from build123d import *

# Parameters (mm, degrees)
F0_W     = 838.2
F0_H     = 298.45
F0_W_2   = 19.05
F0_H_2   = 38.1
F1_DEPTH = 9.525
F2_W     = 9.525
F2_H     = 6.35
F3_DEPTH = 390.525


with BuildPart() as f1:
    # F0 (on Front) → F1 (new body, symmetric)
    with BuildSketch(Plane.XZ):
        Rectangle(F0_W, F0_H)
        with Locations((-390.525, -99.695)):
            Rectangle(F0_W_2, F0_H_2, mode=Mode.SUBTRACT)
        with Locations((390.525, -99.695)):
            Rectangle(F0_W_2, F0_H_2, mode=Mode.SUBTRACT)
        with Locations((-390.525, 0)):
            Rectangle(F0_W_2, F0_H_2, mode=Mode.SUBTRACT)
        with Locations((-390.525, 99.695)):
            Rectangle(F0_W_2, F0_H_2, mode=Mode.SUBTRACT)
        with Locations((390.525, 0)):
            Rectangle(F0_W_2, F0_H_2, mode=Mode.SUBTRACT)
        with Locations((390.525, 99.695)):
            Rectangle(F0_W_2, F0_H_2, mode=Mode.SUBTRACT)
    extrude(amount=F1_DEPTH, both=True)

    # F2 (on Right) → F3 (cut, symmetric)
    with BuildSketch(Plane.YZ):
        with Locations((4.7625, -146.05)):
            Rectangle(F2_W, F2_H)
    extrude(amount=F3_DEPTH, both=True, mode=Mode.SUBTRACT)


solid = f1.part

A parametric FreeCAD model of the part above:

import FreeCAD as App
import Part
import Sketcher
Q = App.Units.Quantity

doc = App.newDocument("Part")
params = doc.addObject("Spreadsheet::Sheet", "Params")
for row, (alias, value) in enumerate([
    ("sketch1_width", "33 in"),
    ("sketch1_height", "1.5 in"),
    ("sketch1_width2", "0.75 in"),
    ("sketch1_height2", "11.75 in"),
    ("pad1_length", "0.75 in"),
    ("sketch2_height", "0.25 in"),
    ("sketch2_width", "0.375 in"),
    ("pocket1_length", "30.75 in"),
], start=1):
    params.set(f"A{row}", alias)
    params.set(f"B{row}", "=" + value)
    params.setAlias(f"B{row}", alias)

body = doc.addObject("PartDesign::Body", "Body")

sketch1 = doc.addObject("Sketcher::SketchObject", "Sketch")
body.addObject(sketch1)
sketch1.AttachmentSupport = (doc.XZ_Plane, [""])
sketch1.MapMode = "FlatFace"
sketch1.addGeometry([
    Part.LineSegment(App.Vector(-419, 149, 0), App.Vector(-419, -149, 0)),
    Part.LineSegment(App.Vector(-419, -149, 0), App.Vector(419, -149, 0)),
    Part.LineSegment(App.Vector(419, -149, 0), App.Vector(419, 149, 0)),
    Part.LineSegment(App.Vector(419, 149, 0), App.Vector(-419, 149, 0)),
    Part.LineSegment(App.Vector(-381, -119, 0), App.Vector(-400, -119, 0)),
    Part.LineSegment(App.Vector(-400, -119, 0), App.Vector(-400, -81, 0)),
    Part.LineSegment(App.Vector(-400, -81, 0), App.Vector(-381, -81, 0)),
    Part.LineSegment(App.Vector(-381, -81, 0), App.Vector(-381, -119, 0)),
    Part.LineSegment(App.Vector(400, -119, 0), App.Vector(381, -119, 0)),
    Part.LineSegment(App.Vector(381, -119, 0), App.Vector(381, -81, 0)),
    Part.LineSegment(App.Vector(381, -81, 0), App.Vector(400, -81, 0)),
    Part.LineSegment(App.Vector(400, -81, 0), App.Vector(400, -119, 0)),
    Part.LineSegment(App.Vector(-381, -19, 0), App.Vector(-400, -19, 0)),
    Part.LineSegment(App.Vector(-400, -19, 0), App.Vector(-400, 19, 0)),
    Part.LineSegment(App.Vector(-400, 19, 0), App.Vector(-381, 19, 0)),
    Part.LineSegment(App.Vector(-381, 19, 0), App.Vector(-381, -19, 0)),
    Part.LineSegment(App.Vector(-381, 81, 0), App.Vector(-400, 81, 0)),
    Part.LineSegment(App.Vector(-400, 81, 0), App.Vector(-400, 119, 0)),
    Part.LineSegment(App.Vector(-400, 119, 0), App.Vector(-381, 119, 0)),
    Part.LineSegment(App.Vector(-381, 119, 0), App.Vector(-381, 81, 0)),
    Part.LineSegment(App.Vector(400, -19, 0), App.Vector(381, -19, 0)),
    Part.LineSegment(App.Vector(381, -19, 0), App.Vector(381, 19, 0)),
    Part.LineSegment(App.Vector(381, 19, 0), App.Vector(400, 19, 0)),
    Part.LineSegment(App.Vector(400, 19, 0), App.Vector(400, -19, 0)),
    Part.LineSegment(App.Vector(400, 81, 0), App.Vector(381, 81, 0)),
    Part.LineSegment(App.Vector(381, 81, 0), App.Vector(381, 119, 0)),
    Part.LineSegment(App.Vector(381, 119, 0), App.Vector(400, 119, 0)),
    Part.LineSegment(App.Vector(400, 119, 0), App.Vector(400, 81, 0)),
], False)
sketch1.addConstraint([
    Sketcher.Constraint("Coincident", 0, 2, 1, 1),
    Sketcher.Constraint("Coincident", 1, 2, 2, 1),
    Sketcher.Constraint("Coincident", 2, 2, 3, 1),
    Sketcher.Constraint("Coincident", 3, 2, 0, 1),
    Sketcher.Constraint("Coincident", 4, 2, 5, 1),
    Sketcher.Constraint("Coincident", 5, 2, 6, 1),
    Sketcher.Constraint("Coincident", 6, 2, 7, 1),
    Sketcher.Constraint("Coincident", 7, 2, 4, 1),
    Sketcher.Constraint("Coincident", 8, 2, 9, 1),
    Sketcher.Constraint("Coincident", 9, 2, 10, 1),
    Sketcher.Constraint("Coincident", 10, 2, 11, 1),
    Sketcher.Constraint("Coincident", 11, 2, 8, 1),
    Sketcher.Constraint("Coincident", 12, 2, 13, 1),
    Sketcher.Constraint("Coincident", 13, 2, 14, 1),
    Sketcher.Constraint("Coincident", 14, 2, 15, 1),
    Sketcher.Constraint("Coincident", 15, 2, 12, 1),
    Sketcher.Constraint("Coincident", 16, 2, 17, 1),
    Sketcher.Constraint("Coincident", 17, 2, 18, 1),
    Sketcher.Constraint("Coincident", 18, 2, 19, 1),
    Sketcher.Constraint("Coincident", 19, 2, 16, 1),
    Sketcher.Constraint("Coincident", 20, 2, 21, 1),
    Sketcher.Constraint("Coincident", 21, 2, 22, 1),
    Sketcher.Constraint("Coincident", 22, 2, 23, 1),
    Sketcher.Constraint("Coincident", 23, 2, 20, 1),
    Sketcher.Constraint("Coincident", 24, 2, 25, 1),
    Sketcher.Constraint("Coincident", 25, 2, 26, 1),
    Sketcher.Constraint("Coincident", 26, 2, 27, 1),
    Sketcher.Constraint("Coincident", 27, 2, 24, 1),
    Sketcher.Constraint("Vertical", 0),
    Sketcher.Constraint("Horizontal", 1),
    Sketcher.Constraint("Vertical", 2),
    Sketcher.Constraint("Horizontal", 3),
    Sketcher.Constraint("Horizontal", 4),
    Sketcher.Constraint("Vertical", 5),
    Sketcher.Constraint("Horizontal", 6),
    Sketcher.Constraint("Vertical", 7),
    Sketcher.Constraint("Horizontal", 8),
    Sketcher.Constraint("Vertical", 9),
    Sketcher.Constraint("Horizontal", 10),
    Sketcher.Constraint("Vertical", 11),
    Sketcher.Constraint("Horizontal", 12),
    Sketcher.Constraint("Vertical", 13),
    Sketcher.Constraint("Horizontal", 14),
    Sketcher.Constraint("Vertical", 15),
    Sketcher.Constraint("Horizontal", 16),
    Sketcher.Constraint("Vertical", 17),
    Sketcher.Constraint("Horizontal", 18),
    Sketcher.Constraint("Vertical", 19),
    Sketcher.Constraint("Horizontal", 20),
    Sketcher.Constraint("Vertical", 21),
    Sketcher.Constraint("Horizontal", 22),
    Sketcher.Constraint("Vertical", 23),
    Sketcher.Constraint("Horizontal", 24),
    Sketcher.Constraint("Vertical", 25),
    Sketcher.Constraint("Horizontal", 26),
    Sketcher.Constraint("Vertical", 27),
    Sketcher.Constraint("Symmetric", 0, 2, 2, 2, -1, 1),
    Sketcher.Constraint("Symmetric", 10, 2, 16, 2, -1, 1),
    Sketcher.Constraint("Symmetric", 8, 2, 18, 2, -1, 1),
    Sketcher.Constraint("Symmetric", 14, 2, 20, 2, -1, 1),
    Sketcher.Constraint("Symmetric", 12, 2, 22, 2, -1, 1),
    Sketcher.Constraint("Symmetric", 6, 2, 24, 2, -1, 1),
    Sketcher.Constraint("Symmetric", 4, 2, 26, 2, -1, 1),
    Sketcher.Constraint("Symmetric", 7, 2, 8, 2, -2),
    Sketcher.Constraint("Symmetric", 5, 2, 10, 2, -2),
    Sketcher.Constraint("Horizontal", 15, 2, 20, 2),
    Sketcher.Constraint("Vertical", 5, 2, 12, 2),
    Sketcher.Constraint("Vertical", 7, 2, 14, 2),
    Sketcher.Constraint("Equal", 11, 13),
    Sketcher.Constraint("DistanceX", 1, 1, 1, 2, Q("33 in")),
    Sketcher.Constraint("DistanceY", 5, 1, 5, 2, Q("1.5 in")),
    Sketcher.Constraint("DistanceX", 6, 2, -1, 1, Q("15 in")),
    Sketcher.Constraint("DistanceX", 4, 2, 4, 1, Q("0.75 in")),
    Sketcher.Constraint("DistanceY", 0, 2, 0, 1, Q("11.75 in")),
    Sketcher.Constraint("DistanceY", 0, 2, 4, 2, Q("1.2 in")),
])
sketch1.setExpression("Constraints[69]", "Params.sketch1_width")
sketch1.setExpression("Constraints[70]", "Params.sketch1_height")
sketch1.setExpression("Constraints[72]", "Params.sketch1_width2")
sketch1.setExpression("Constraints[73]", "Params.sketch1_height2")
pad1 = doc.addObject("PartDesign::Pad", "Pad")
body.addObject(pad1)
pad1.Profile = sketch1
pad1.setExpression("Length", "Params.pad1_length")
pad1.Midplane = True

sketch2 = doc.addObject("Sketcher::SketchObject", "Sketch001")
body.addObject(sketch2)
sketch2.AttachmentSupport = (doc.YZ_Plane, [""])
sketch2.MapMode = "FlatFace"
sketch2.addGeometry([
    Part.LineSegment(App.Vector(0, -143, 0), App.Vector(0, -149, 0)),
    Part.LineSegment(App.Vector(0, -149, 0), App.Vector(10, -149, 0)),
    Part.LineSegment(App.Vector(10, -149, 0), App.Vector(10, -143, 0)),
    Part.LineSegment(App.Vector(10, -143, 0), App.Vector(0, -143, 0)),
], False)
sketch2.addConstraint([
    Sketcher.Constraint("Coincident", 0, 2, 1, 1),
    Sketcher.Constraint("Coincident", 1, 2, 2, 1),
    Sketcher.Constraint("Coincident", 2, 2, 3, 1),
    Sketcher.Constraint("Coincident", 3, 2, 0, 1),
    Sketcher.Constraint("Vertical", 0),
    Sketcher.Constraint("Horizontal", 1),
    Sketcher.Constraint("Vertical", 2),
    Sketcher.Constraint("Horizontal", 3),
    Sketcher.Constraint("PointOnObject", 0, 2, -2),
    Sketcher.Constraint("DistanceY", 0, 2, 0, 1, Q("0.25 in")),
    Sketcher.Constraint("DistanceX", 1, 1, 1, 2, Q("0.375 in")),
    Sketcher.Constraint("DistanceY", 0, 2, -1, 1, Q("5.875 in")),
])
sketch2.setExpression("Constraints[9]", "Params.sketch2_height")
sketch2.setExpression("Constraints[10]", "Params.sketch2_width")
pocket1 = doc.addObject("PartDesign::Pocket", "Pocket")
body.addObject(pocket1)
pocket1.Profile = sketch2
pocket1.setExpression("Length", "Params.pocket1_length")
pocket1.Midplane = True

doc.recompute()
